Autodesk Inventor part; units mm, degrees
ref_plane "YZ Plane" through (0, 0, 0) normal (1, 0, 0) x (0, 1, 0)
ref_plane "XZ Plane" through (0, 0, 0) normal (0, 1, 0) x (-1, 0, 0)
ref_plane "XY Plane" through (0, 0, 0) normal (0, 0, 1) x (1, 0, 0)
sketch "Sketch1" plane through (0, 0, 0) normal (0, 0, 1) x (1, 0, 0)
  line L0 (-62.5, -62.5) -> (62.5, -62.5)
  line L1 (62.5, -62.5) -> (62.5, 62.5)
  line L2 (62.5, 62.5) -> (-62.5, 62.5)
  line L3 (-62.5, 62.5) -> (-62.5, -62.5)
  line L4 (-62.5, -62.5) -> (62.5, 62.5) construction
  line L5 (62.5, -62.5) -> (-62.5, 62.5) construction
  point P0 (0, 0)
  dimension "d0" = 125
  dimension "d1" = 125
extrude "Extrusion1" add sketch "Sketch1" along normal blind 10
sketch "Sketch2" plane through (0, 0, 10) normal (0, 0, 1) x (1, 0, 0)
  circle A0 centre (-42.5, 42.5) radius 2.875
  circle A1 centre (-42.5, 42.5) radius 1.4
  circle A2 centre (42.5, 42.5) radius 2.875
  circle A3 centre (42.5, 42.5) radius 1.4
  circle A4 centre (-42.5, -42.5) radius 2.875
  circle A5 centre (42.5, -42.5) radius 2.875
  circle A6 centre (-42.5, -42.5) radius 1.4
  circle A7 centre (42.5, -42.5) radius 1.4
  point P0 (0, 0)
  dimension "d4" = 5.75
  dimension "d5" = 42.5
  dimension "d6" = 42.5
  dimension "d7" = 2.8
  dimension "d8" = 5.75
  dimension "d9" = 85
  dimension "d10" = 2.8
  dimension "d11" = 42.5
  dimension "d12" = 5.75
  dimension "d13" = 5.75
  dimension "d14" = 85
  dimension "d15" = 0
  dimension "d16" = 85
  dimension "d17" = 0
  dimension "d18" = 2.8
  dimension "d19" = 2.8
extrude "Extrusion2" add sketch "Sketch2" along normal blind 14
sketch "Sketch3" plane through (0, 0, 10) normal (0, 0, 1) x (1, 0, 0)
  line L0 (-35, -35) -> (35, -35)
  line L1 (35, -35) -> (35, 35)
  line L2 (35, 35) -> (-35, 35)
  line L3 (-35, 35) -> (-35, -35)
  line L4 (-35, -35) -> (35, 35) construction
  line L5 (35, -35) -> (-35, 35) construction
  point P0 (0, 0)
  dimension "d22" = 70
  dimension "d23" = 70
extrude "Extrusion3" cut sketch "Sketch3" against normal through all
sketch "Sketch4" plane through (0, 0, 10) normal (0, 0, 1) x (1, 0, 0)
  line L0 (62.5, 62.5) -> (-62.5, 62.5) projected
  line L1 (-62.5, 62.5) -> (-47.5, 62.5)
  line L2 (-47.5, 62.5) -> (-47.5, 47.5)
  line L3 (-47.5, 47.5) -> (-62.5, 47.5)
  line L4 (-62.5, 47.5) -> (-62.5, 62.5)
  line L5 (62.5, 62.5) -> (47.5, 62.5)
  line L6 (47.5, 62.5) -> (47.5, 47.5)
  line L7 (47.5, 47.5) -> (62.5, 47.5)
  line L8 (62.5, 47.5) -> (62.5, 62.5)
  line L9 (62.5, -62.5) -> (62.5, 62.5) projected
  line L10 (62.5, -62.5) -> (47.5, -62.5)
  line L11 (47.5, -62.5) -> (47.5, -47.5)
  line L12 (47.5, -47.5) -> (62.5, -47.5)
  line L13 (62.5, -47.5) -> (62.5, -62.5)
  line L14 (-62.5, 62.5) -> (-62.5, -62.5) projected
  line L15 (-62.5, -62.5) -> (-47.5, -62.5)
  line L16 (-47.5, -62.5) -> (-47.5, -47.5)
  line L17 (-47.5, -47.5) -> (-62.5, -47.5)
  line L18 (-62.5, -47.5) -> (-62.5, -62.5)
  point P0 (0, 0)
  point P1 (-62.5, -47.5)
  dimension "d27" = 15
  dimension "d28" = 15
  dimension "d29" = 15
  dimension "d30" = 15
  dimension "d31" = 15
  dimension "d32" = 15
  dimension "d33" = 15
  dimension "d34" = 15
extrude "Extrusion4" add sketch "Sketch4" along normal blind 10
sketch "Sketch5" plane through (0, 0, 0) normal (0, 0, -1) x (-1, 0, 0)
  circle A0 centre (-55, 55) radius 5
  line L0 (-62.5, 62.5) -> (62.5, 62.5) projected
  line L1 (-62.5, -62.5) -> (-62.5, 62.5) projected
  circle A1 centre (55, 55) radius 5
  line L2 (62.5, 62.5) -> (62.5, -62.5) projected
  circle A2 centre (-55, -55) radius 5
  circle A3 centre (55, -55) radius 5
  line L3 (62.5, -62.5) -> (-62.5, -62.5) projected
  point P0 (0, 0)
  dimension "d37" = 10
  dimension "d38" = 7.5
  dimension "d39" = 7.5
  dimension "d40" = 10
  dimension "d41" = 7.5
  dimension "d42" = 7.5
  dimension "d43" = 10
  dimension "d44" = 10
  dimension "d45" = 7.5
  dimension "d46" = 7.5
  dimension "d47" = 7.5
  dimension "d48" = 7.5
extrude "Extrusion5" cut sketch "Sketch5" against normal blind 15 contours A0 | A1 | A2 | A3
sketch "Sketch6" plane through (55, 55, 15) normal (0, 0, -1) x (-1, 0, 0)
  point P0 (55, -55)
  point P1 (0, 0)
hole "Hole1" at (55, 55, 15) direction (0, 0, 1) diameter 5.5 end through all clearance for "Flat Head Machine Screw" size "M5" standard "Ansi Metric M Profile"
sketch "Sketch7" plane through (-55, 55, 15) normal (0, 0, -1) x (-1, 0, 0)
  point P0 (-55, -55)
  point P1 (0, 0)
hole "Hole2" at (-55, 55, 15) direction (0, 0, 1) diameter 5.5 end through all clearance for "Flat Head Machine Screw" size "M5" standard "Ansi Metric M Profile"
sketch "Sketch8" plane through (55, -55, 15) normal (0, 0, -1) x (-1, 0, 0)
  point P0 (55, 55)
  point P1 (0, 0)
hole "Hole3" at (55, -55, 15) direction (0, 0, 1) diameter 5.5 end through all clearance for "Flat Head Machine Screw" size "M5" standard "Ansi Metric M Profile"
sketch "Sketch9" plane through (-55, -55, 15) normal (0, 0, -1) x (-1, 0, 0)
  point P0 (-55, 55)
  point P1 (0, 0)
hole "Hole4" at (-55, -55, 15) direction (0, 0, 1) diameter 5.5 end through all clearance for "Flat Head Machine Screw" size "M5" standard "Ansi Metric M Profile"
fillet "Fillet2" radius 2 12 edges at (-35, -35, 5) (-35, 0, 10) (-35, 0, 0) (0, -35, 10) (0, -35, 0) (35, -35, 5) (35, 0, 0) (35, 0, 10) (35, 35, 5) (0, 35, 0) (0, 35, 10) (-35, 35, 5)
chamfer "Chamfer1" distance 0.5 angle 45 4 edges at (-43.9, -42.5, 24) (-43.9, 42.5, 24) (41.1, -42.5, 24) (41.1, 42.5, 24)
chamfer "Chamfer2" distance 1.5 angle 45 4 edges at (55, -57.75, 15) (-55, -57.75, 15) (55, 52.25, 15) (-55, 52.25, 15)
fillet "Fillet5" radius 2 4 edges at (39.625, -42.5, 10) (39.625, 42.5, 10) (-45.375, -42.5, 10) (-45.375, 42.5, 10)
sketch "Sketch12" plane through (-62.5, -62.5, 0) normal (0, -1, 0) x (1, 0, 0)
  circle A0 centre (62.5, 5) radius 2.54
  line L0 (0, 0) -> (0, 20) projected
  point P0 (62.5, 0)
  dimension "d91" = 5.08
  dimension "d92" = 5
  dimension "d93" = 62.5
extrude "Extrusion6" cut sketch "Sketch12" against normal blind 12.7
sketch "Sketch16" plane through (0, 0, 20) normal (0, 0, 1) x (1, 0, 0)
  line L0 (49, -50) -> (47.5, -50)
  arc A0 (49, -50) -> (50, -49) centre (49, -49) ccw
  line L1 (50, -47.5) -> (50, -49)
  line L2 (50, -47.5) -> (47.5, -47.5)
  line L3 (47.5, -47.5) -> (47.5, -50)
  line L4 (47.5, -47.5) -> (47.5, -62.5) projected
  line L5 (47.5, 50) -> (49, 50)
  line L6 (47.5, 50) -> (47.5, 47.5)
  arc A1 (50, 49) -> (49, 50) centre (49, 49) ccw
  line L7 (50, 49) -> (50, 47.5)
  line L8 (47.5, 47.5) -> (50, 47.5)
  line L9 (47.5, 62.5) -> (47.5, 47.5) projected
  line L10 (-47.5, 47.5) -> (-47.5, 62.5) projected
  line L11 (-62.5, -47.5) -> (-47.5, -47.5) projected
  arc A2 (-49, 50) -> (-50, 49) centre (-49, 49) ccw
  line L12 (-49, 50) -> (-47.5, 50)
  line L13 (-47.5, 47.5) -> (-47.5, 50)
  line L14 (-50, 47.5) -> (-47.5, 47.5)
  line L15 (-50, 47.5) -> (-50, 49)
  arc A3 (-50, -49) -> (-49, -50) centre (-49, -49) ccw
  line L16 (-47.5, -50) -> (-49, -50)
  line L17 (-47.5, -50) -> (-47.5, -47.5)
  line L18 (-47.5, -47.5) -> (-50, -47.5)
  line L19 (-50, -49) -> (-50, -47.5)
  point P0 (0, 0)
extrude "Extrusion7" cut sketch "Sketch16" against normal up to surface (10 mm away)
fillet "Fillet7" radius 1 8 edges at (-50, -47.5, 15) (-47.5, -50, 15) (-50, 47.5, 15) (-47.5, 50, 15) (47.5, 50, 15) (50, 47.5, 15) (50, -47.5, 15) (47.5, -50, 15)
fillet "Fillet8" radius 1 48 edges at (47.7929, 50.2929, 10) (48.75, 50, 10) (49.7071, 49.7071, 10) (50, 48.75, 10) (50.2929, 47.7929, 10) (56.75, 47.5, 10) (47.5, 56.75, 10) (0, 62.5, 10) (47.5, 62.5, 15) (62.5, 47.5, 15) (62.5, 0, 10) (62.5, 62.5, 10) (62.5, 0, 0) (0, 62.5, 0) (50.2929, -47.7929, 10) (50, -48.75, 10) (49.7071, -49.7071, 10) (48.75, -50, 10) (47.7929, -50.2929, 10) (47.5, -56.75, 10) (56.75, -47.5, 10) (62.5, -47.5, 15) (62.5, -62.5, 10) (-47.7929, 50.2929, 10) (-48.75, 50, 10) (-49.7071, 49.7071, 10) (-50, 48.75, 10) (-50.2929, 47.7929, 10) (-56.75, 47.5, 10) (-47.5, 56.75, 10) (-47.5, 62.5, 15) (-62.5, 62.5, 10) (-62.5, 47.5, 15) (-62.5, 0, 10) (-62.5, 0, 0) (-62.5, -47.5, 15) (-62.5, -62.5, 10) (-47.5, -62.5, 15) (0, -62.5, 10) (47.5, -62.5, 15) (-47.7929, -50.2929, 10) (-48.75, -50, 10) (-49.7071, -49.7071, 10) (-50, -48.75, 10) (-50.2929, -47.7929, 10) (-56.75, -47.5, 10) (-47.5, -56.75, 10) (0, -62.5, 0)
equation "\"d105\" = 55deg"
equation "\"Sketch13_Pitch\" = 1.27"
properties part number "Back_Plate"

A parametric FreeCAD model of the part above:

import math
import FreeCAD as App
import Part
import Sketcher

V = App.Vector


def edges_at(feature, points):
    """Names of the edges that pass closest to the given points."""
    edges = feature.Shape.Edges
    near = lambda p: min(range(len(edges)), key=lambda i: edges[i].distToShape(Part.Vertex(*p))[0])
    return sorted({f"Edge{near(p) + 1}" for p in points})

doc = App.newDocument("Part")
params = doc.addObject("Spreadsheet::Sheet", "Params")
for row, (alias, value) in enumerate([
    ("sketch1_width", "125 mm"),
    ("pad1_length", "10 mm"),
    ("sketch2_diameter", "2.8 mm"),
    ("sketch2_diameter2", "5.75 mm"),
    ("pad2_length", "14 mm"),
    ("sketch3_width", "70 mm"),
    ("sketch4_width", "15 mm"),
    ("pad3_length", "10 mm"),
    ("sketch5_diameter", "10 mm"),
    ("pocket2_length", "15 mm"),
    ("sketch6_diameter", "5.5 mm"),
    ("hole_diameter", "5.5 mm"),
    ("sketch7_diameter", "5.5 mm"),
    ("hole2_diameter", "5.5 mm"),
    ("sketch8_diameter", "5.5 mm"),
    ("hole3_diameter", "5.5 mm"),
    ("sketch9_diameter", "5.5 mm"),
    ("hole4_diameter", "5.5 mm"),
    ("fillet_radius", "2 mm"),
    ("chamfer_size", "0.5 mm"),
    ("chamfer2_size", "1.5 mm"),
    ("fillet2_radius", "2 mm"),
    ("sketch10_diameter", "5.08 mm"),
    ("pocket3_length", "12.7 mm"),
    ("sketch11_radius", "1 mm"),
    ("sketch11_width", "1.5 mm"),
    ("pocket4_length", "10 mm"),
    ("fillet3_radius", "1 mm"),
    ("fillet4_radius", "1 mm"),
], start=1):
    params.set(f"A{row}", alias)
    params.set(f"B{row}", "=" + value)
    params.setAlias(f"B{row}", alias)

body = doc.addObject("PartDesign::Body", "Body")

sketch1 = doc.addObject("Sketcher::SketchObject", "Sketch")
body.addObject(sketch1)
sketch1.AttachmentSupport = (doc.XY_Plane, [""])
sketch1.MapMode = "FlatFace"
sketch1.addGeometry([
    Part.LineSegment(V(-62, 62, 0), V(-62, -62, 0)),
    Part.LineSegment(V(-62, -62, 0), V(62, -62, 0)),
    Part.LineSegment(V(62, -62, 0), V(62, 62, 0)),
    Part.LineSegment(V(62, 62, 0), V(-62, 62, 0)),
], False)
sketch1.addConstraint([
    Sketcher.Constraint("Coincident", 0, 2, 1, 1),
    Sketcher.Constraint("Coincident", 1, 2, 2, 1),
    Sketcher.Constraint("Coincident", 2, 2, 3, 1),
    Sketcher.Constraint("Coincident", 3, 2, 0, 1),
    Sketcher.Constraint("Vertical", 0),
    Sketcher.Constraint("Horizontal", 1),
    Sketcher.Constraint("Vertical", 2),
    Sketcher.Constraint("Horizontal", 3),
    Sketcher.Constraint("Symmetric", 0, 2, 2, 2, -1, 1),
    Sketcher.Constraint("Equal", 3, 0),
    Sketcher.Constraint("DistanceX", 1, 1, 1, 2, 125.0),
])
sketch1.setExpression("Constraints[10]", "Params.sketch1_width")
pad1 = doc.addObject("PartDesign::Pad", "Pad")
body.addObject(pad1)
pad1.Profile = sketch1
pad1.setExpression("Length", "Params.pad1_length")

sketch2 = doc.addObject("Sketcher::SketchObject", "Sketch001")
body.addObject(sketch2)
sketch2.AttachmentSupport = (doc.XY_Plane, [""])
sketch2.MapMode = "FlatFace"
sketch2.AttachmentOffset = App.Placement(V(0, 0, 10), App.Rotation())
sketch2.addGeometry([
    Part.Circle(V(-42.5, 42.5, 0), V(0, 0, 1), 2.9),
    Part.Circle(V(-42.5, 42.5, 0), V(0, 0, 1), 1.4),
    Part.Circle(V(42.5, 42.5, 0), V(0, 0, 1), 2.9),
    Part.Circle(V(42.5, 42.5, 0), V(0, 0, 1), 1.4),
    Part.Circle(V(-42.5, -42.5, 0), V(0, 0, 1), 2.9),
    Part.Circle(V(-42.5, -42.5, 0), V(0, 0, 1), 1.4),
    Part.Circle(V(42.5, -42.5, 0), V(0, 0, 1), 2.9),
    Part.Circle(V(42.5, -42.5, 0), V(0, 0, 1), 1.4),
], False)
sketch2.addConstraint([
    Sketcher.Constraint("Coincident", 1, 3, 0, 3),
    Sketcher.Constraint("Coincident", 3, 3, 2, 3),
    Sketcher.Constraint("Coincident", 5, 3, 4, 3),
    Sketcher.Constraint("Coincident", 7, 3, 6, 3),
    Sketcher.Constraint("Equal", 0, 2),
    Sketcher.Constraint("Equal", 1, 3),
    Sketcher.Constraint("Equal", 2, 4),
    Sketcher.Constraint("Equal", 3, 5),
    Sketcher.Constraint("Equal", 4, 6),
    Sketcher.Constraint("Equal", 5, 7),
    Sketcher.Constraint("Symmetric", 2, 3, 4, 3, -1, 1),
    Sketcher.Constraint("Symmetric", 0, 3, 6, 3, -1, 1),
    Sketcher.Constraint("Symmetric", 0, 3, 2, 3, -2),
    Sketcher.Constraint("Diameter", 1, 2.8),
    Sketcher.Constraint("Diameter", 0, 5.75),
    Sketcher.Constraint("DistanceX", 0, 3, 2, 3, 85.0),
    Sketcher.Constraint("DistanceY", 4, 3, 0, 3, 85.0),
])
sketch2.setExpression("Constraints[13]", "Params.sketch2_diameter")
sketch2.setExpression("Constraints[14]", "Params.sketch2_diameter2")
pad2 = doc.addObject("PartDesign::Pad", "Pad001")
body.addObject(pad2)
pad2.Profile = sketch2
pad2.setExpression("Length", "Params.pad2_length")

sketch3 = doc.addObject("Sketcher::SketchObject", "Sketch002")
body.addObject(sketch3)
sketch3.AttachmentSupport = (doc.XY_Plane, [""])
sketch3.MapMode = "FlatFace"
sketch3.AttachmentOffset = App.Placement(V(0, 0, 10), App.Rotation())
sketch3.addGeometry([
    Part.LineSegment(V(-35, 35, 0), V(-35, -35, 0)),
    Part.LineSegment(V(-35, -35, 0), V(35, -35, 0)),
    Part.LineSegment(V(35, -35, 0), V(35, 35, 0)),
    Part.LineSegment(V(35, 35, 0), V(-35, 35, 0)),
], False)
sketch3.addConstraint([
    Sketcher.Constraint("Coincident", 0, 2, 1, 1),
    Sketcher.Constraint("Coincident", 1, 2, 2, 1),
    Sketcher.Constraint("Coincident", 2, 2, 3, 1),
    Sketcher.Constraint("Coincident", 3, 2, 0, 1),
    Sketcher.Constraint("Vertical", 0),
    Sketcher.Constraint("Horizontal", 1),
    Sketcher.Constraint("Vertical", 2),
    Sketcher.Constraint("Horizontal", 3),
    Sketcher.Constraint("Symmetric", 0, 2, 2, 2, -1, 1),
    Sketcher.Constraint("Equal", 3, 0),
    Sketcher.Constraint("DistanceX", 1, 1, 1, 2, 70.0),
])
sketch3.setExpression("Constraints[10]", "Params.sketch3_width")
pocket1 = doc.addObject("PartDesign::Pocket", "Pocket")
body.addObject(pocket1)
pocket1.Profile = sketch3
pocket1.Type = "ThroughAll"

sketch4 = doc.addObject("Sketcher::SketchObject", "Sketch003")
body.addObject(sketch4)
sketch4.AttachmentSupport = (doc.XY_Plane, [""])
sketch4.MapMode = "FlatFace"
sketch4.AttachmentOffset = App.Placement(V(0, 0, 10), App.Rotation())
sketch4.addGeometry([
    Part.LineSegment(V(62, 48, 0), V(62, 62, 0)),
    Part.LineSegment(V(62, 62, 0), V(48, 62, 0)),
    Part.LineSegment(V(48, 62, 0), V(48, 48, 0)),
    Part.LineSegment(V(48, 48, 0), V(62, 48, 0)),
    Part.LineSegment(V(62, -62, 0), V(62, -48, 0)),
    Part.LineSegment(V(62, -48, 0), V(48, -48, 0)),
    Part.LineSegment(V(48, -48, 0), V(48, -62, 0)),
    Part.LineSegment(V(48, -62, 0), V(62, -62, 0)),
    Part.LineSegment(V(-48, -48, 0), V(-62, -48, 0)),
    Part.LineSegment(V(-62, -48, 0), V(-62, -62, 0)),
    Part.LineSegment(V(-62, -62, 0), V(-48, -62, 0)),
    Part.LineSegment(V(-48, -62, 0), V(-48, -48, 0)),
    Part.LineSegment(V(-48, 48, 0), V(-48, 62, 0)),
    Part.LineSegment(V(-48, 62, 0), V(-62, 62, 0)),
    Part.LineSegment(V(-62, 62, 0), V(-62, 48, 0)),
    Part.LineSegment(V(-62, 48, 0), V(-48, 48, 0)),
], False)
sketch4.addConstraint([
    Sketcher.Constraint("Coincident", 0, 2, 1, 1),
    Sketcher.Constraint("Coincident", 1, 2, 2, 1),
    Sketcher.Constraint("Coincident", 2, 2, 3, 1),
    Sketcher.Constraint("Coincident", 3, 2, 0, 1),
    Sketcher.Constraint("Coincident", 4, 2, 5, 1),
    Sketcher.Constraint("Coincident", 5, 2, 6, 1),
    Sketcher.Constraint("Coincident", 6, 2, 7, 1),
    Sketcher.Constraint("Coincident", 7, 2, 4, 1),
    Sketcher.Constraint("Coincident", 8, 2, 9, 1),
    Sketcher.Constraint("Coincident", 9, 2, 10, 1),
    Sketcher.Constraint("Coincident", 10, 2, 11, 1),
    Sketcher.Constraint("Coincident", 11, 2, 8, 1),
    Sketcher.Constraint("Coincident", 12, 2, 13, 1),
    Sketcher.Constraint("Coincident", 13, 2, 14, 1),
    Sketcher.Constraint("Coincident", 14, 2, 15, 1),
    Sketcher.Constraint("Coincident", 15, 2, 12, 1),
    Sketcher.Constraint("Vertical", 0),
    Sketcher.Constraint("Horizontal", 1),
    Sketcher.Constraint("Vertical", 2),
    Sketcher.Constraint("Horizontal", 3),
    Sketcher.Constraint("Vertical", 4),
    Sketcher.Constraint("Horizontal", 5),
    Sketcher.Constraint("Vertical", 6),
    Sketcher.Constraint("Horizontal", 7),
    Sketcher.Constraint("Horizontal", 8),
    Sketcher.Constraint("Vertical", 9),
    Sketcher.Constraint("Horizontal", 10),
    Sketcher.Constraint("Vertical", 11),
    Sketcher.Constraint("Vertical", 12),
    Sketcher.Constraint("Horizontal", 13),
    Sketcher.Constraint("Vertical", 14),
    Sketcher.Constraint("Horizontal", 15),
    Sketcher.Constraint("Symmetric", 3, 2, 8, 2, -1, 1),
    Sketcher.Constraint("Symmetric", 1, 2, 10, 2, -1, 1),
    Sketcher.Constraint("Symmetric", 6, 2, 12, 2, -1, 1),
    Sketcher.Constraint("Symmetric", 4, 2, 14, 2, -1, 1),
    Sketcher.Constraint("Symmetric", 4, 2, 8, 2, -2),
    Sketcher.Constraint("Symmetric", 6, 2, 10, 2, -2),
    Sketcher.Constraint("Equal", 15, 0),
    Sketcher.Constraint("DistanceX", 1, 2, 1, 1, 15.0),
    Sketcher.Constraint("DistanceY", 4, 2, 3, 2, 95.0),
    Sketcher.Constraint("DistanceX", 8, 2, 5, 2, 110.0),
])
sketch4.setExpression("Constraints[39]", "Params.sketch4_width")
pad3 = doc.addObject("PartDesign::Pad", "Pad002")
body.addObject(pad3)
pad3.Profile = sketch4
pad3.setExpression("Length", "Params.pad3_length")

sketch5 = doc.addObject("Sketcher::SketchObject", "Sketch004")
body.addObject(sketch5)
sketch5.AttachmentSupport = (doc.XY_Plane, [""])
sketch5.MapMode = "FlatFace"
sketch5.addGeometry([
    Part.Circle(V(55, 55, 0), V(0, 0, 1), 5),
    Part.Circle(V(-55, 55, 0), V(0, 0, 1), 5),
    Part.Circle(V(55, -55, 0), V(0, 0, 1), 5),
    Part.Circle(V(-55, -55, 0), V(0, 0, 1), 5),
], False)
sketch5.addConstraint([
    Sketcher.Constraint("Equal", 0, 1),
    Sketcher.Constraint("Equal", 1, 2),
    Sketcher.Constraint("Equal", 2, 3),
    Sketcher.Constraint("Symmetric", 1, 3, 2, 3, -1, 1),
    Sketcher.Constraint("Symmetric", 0, 3, 3, 3, -1, 1),
    Sketcher.Constraint("Symmetric", 0, 3, 1, 3, -2),
    Sketcher.Constraint("Diameter", 0, 10.0),
    Sketcher.Constraint("DistanceX", -1, 1, 0, 3, 55.0),
    Sketcher.Constraint("DistanceY", -1, 1, 0, 3, 55.0),
])
sketch5.setExpression("Constraints[6]", "Params.sketch5_diameter")
pocket2 = doc.addObject("PartDesign::Pocket", "Pocket001")
body.addObject(pocket2)
pocket2.Profile = sketch5
pocket2.setExpression("Length", "Params.pocket2_length")
pocket2.Reversed = True

sketch6 = doc.addObject("Sketcher::SketchObject", "Sketch005")
body.addObject(sketch6)
sketch6.AttachmentSupport = (doc.XY_Plane, [""])
sketch6.MapMode = "FlatFace"
sketch6.AttachmentOffset = App.Placement(V(0, 0, 15), App.Rotation())
sketch6.addGeometry(Part.Circle(V(55, 55, 0), V(0, 0, 1), 2.8), False)
sketch6.addConstraint([
    Sketcher.Constraint("Diameter", 0, 5.5),
    Sketcher.Constraint("DistanceX", -1, 1, 0, 3, 55.0),
    Sketcher.Constraint("DistanceY", -1, 1, 0, 3, 55.0),
])
sketch6.setExpression("Constraints[0]", "Params.sketch6_diameter")
doc.recompute()
hole = doc.addObject("PartDesign::Hole", "Hole")
body.addObject(hole)
hole.Profile = sketch6
hole.ThreadType = "None"
hole.setExpression("Diameter", "Params.hole_diameter")
hole.DepthType = "ThroughAll"
hole.Reversed = True

sketch7 = doc.addObject("Sketcher::SketchObject", "Sketch006")
body.addObject(sketch7)
sketch7.AttachmentSupport = (doc.XY_Plane, [""])
sketch7.MapMode = "FlatFace"
sketch7.AttachmentOffset = App.Placement(V(0, 0, 15), App.Rotation())
sketch7.addGeometry(Part.Circle(V(-55, 55, 0), V(0, 0, 1), 2.8), False)
sketch7.addConstraint([
    Sketcher.Constraint("Diameter", 0, 5.5),
    Sketcher.Constraint("DistanceX", 0, 3, -1, 1, 55.0),
    Sketcher.Constraint("DistanceY", -1, 1, 0, 3, 55.0),
])
sketch7.setExpression("Constraints[0]", "Params.sketch7_diameter")
doc.recompute()
hole2 = doc.addObject("PartDesign::Hole", "Hole001")
body.addObject(hole2)
hole2.Profile = sketch7
hole2.ThreadType = "None"
hole2.setExpression("Diameter", "Params.hole2_diameter")
hole2.DepthType = "ThroughAll"
hole2.Reversed = True

sketch8 = doc.addObject("Sketcher::SketchObject", "Sketch007")
body.addObject(sketch8)
sketch8.AttachmentSupport = (doc.XY_Plane, [""])
sketch8.MapMode = "FlatFace"
sketch8.AttachmentOffset = App.Placement(V(0, 0, 15), App.Rotation())
sketch8.addGeometry(Part.Circle(V(55, -55, 0), V(0, 0, 1), 2.8), False)
sketch8.addConstraint([
    Sketcher.Constraint("Diameter", 0, 5.5),
    Sketcher.Constraint("DistanceX", -1, 1, 0, 3, 55.0),
    Sketcher.Constraint("DistanceY", 0, 3, -1, 1, 55.0),
])
sketch8.setExpression("Constraints[0]", "Params.sketch8_diameter")
doc.recompute()
hole3 = doc.addObject("PartDesign::Hole", "Hole002")
body.addObject(hole3)
hole3.Profile = sketch8
hole3.ThreadType = "None"
hole3.setExpression("Diameter", "Params.hole3_diameter")
hole3.DepthType = "ThroughAll"
hole3.Reversed = True

sketch9 = doc.addObject("Sketcher::SketchObject", "Sketch008")
body.addObject(sketch9)
sketch9.AttachmentSupport = (doc.XY_Plane, [""])
sketch9.MapMode = "FlatFace"
sketch9.AttachmentOffset = App.Placement(V(0, 0, 15), App.Rotation())
sketch9.addGeometry(Part.Circle(V(-55, -55, 0), V(0, 0, 1), 2.8), False)
sketch9.addConstraint([
    Sketcher.Constraint("Diameter", 0, 5.5),
    Sketcher.Constraint("DistanceX", 0, 3, -1, 1, 55.0),
    Sketcher.Constraint("DistanceY", 0, 3, -1, 1, 55.0),
])
sketch9.setExpression("Constraints[0]", "Params.sketch9_diameter")
doc.recompute()
hole4 = doc.addObject("PartDesign::Hole", "Hole003")
body.addObject(hole4)
hole4.Profile = sketch9
hole4.ThreadType = "None"
hole4.setExpression("Diameter", "Params.hole4_diameter")
hole4.DepthType = "ThroughAll"
hole4.Reversed = True
doc.recompute()

fillet = doc.addObject("PartDesign::Fillet", "Fillet")
body.addObject(fillet)
fillet.Base = (hole4, edges_at(hole4, [
    (-35, -35, 5),
    (-35, 0, 10),
    (-35, 0, 0),
    (0, -35, 10),
    (0, -35, 0),
    (35, -35, 5),
    (35, 0, 0),
    (35, 0, 10),
    (35, 35, 5),
    (0, 35, 0),
    (0, 35, 10),
    (-35, 35, 5),
]))
fillet.setExpression("Radius", "Params.fillet_radius")
doc.recompute()

chamfer = doc.addObject("PartDesign::Chamfer", "Chamfer")
body.addObject(chamfer)
chamfer.Base = (fillet, edges_at(fillet, [
    (-43.9, -42.5, 24),
    (-43.9, 42.5, 24),
    (41.1, -42.5, 24),
    (41.1, 42.5, 24),
]))
chamfer.setExpression("Size", "Params.chamfer_size")
doc.recompute()

chamfer2 = doc.addObject("PartDesign::Chamfer", "Chamfer001")
body.addObject(chamfer2)
chamfer2.Base = (chamfer, edges_at(chamfer, [
    (55, -57.75, 15),
    (-55, -57.75, 15),
    (55, 52.25, 15),
    (-55, 52.25, 15),
]))
chamfer2.setExpression("Size", "Params.chamfer2_size")
doc.recompute()

fillet2 = doc.addObject("PartDesign::Fillet", "Fillet001")
body.addObject(fillet2)
fillet2.Base = (chamfer2, edges_at(chamfer2, [
    (39.625, -42.5, 10),
    (39.625, 42.5, 10),
    (-45.375, -42.5, 10),
    (-45.375, 42.5, 10),
]))
fillet2.setExpression("Radius", "Params.fillet2_radius")

sketch10 = doc.addObject("Sketcher::SketchObject", "Sketch009")
body.addObject(sketch10)
sketch10.AttachmentSupport = (doc.XZ_Plane, [""])
sketch10.MapMode = "FlatFace"
sketch10.AttachmentOffset = App.Placement(V(0, 0, 62.5), App.Rotation())
sketch10.addGeometry(Part.Circle(V(0, 5, 0), V(0, 0, 1), 2.5), False)
sketch10.addConstraint([
    Sketcher.Constraint("PointOnObject", 0, 3, -2),
    Sketcher.Constraint("Diameter", 0, 5.08),
    Sketcher.Constraint("DistanceY", -1, 1, 0, 3, 5.0),
])
sketch10.setExpression("Constraints[1]", "Params.sketch10_diameter")
pocket3 = doc.addObject("PartDesign::Pocket", "Pocket002")
body.addObject(pocket3)
pocket3.Profile = sketch10
pocket3.setExpression("Length", "Params.pocket3_length")

sketch11 = doc.addObject("Sketcher::SketchObject", "Sketch010")
body.addObject(sketch11)
sketch11.AttachmentSupport = (doc.XY_Plane, [""])
sketch11.MapMode = "FlatFace"
sketch11.AttachmentOffset = App.Placement(V(0, 0, 20), App.Rotation())
sketch11.addGeometry([
    Part.LineSegment(V(47.5, -50, 0), V(49, -50, 0)),
    Part.ArcOfCircle(Part.Circle(V(49, -49, 0), V(0, 0, 1), 1), math.radians(-90), math.radians(0)),
    Part.LineSegment(V(50, -49, 0), V(50, -47.5, 0)),
    Part.LineSegment(V(50, -47.5, 0), V(47.5, -47.5, 0)),
    Part.LineSegment(V(47.5, -47.5, 0), V(47.5, -50, 0)),
    Part.LineSegment(V(49, 50, 0), V(47.5, 50, 0)),
    Part.LineSegment(V(47.5, 50, 0), V(47.5, 47.5, 0)),
    Part.LineSegment(V(47.5, 47.5, 0), V(50, 47.5, 0)),
    Part.LineSegment(V(50, 47.5, 0), V(50, 49, 0)),
    Part.ArcOfCircle(Part.Circle(V(49, 49, 0), V(0, 0, 1), 1), math.radians(0), math.radians(90)),
    Part.LineSegment(V(-50, 47.5, 0), V(-47.5, 47.5, 0)),
    Part.LineSegment(V(-47.5, 47.5, 0), V(-47.5, 50, 0)),
    Part.LineSegment(V(-47.5, 50, 0), V(-49, 50, 0)),
    Part.ArcOfCircle(Part.Circle(V(-49, 49, 0), V(0, 0, 1), 1), math.radians(90), math.radians(180)),
    Part.LineSegment(V(-50, 49, 0), V(-50, 47.5, 0)),
    Part.LineSegment(V(-47.5, -47.5, 0), V(-50, -47.5, 0)),
    Part.LineSegment(V(-50, -47.5, 0), V(-50, -49, 0)),
    Part.ArcOfCircle(Part.Circle(V(-49, -49, 0), V(0, 0, 1), 1), math.radians(180), math.radians(270)),
    Part.LineSegment(V(-49, -50, 0), V(-47.5, -50, 0)),
    Part.LineSegment(V(-47.5, -50, 0), V(-47.5, -47.5, 0)),
], False)
sketch11.addConstraint([
    Sketcher.Constraint("Tangent", 0, 2, 1, 1),
    Sketcher.Constraint("Tangent", 1, 2, 2, 1),
    Sketcher.Constraint("Coincident", 2, 2, 3, 1),
    Sketcher.Constraint("Coincident", 3, 2, 4, 1),
    Sketcher.Constraint("Coincident", 4, 2, 0, 1),
    Sketcher.Constraint("Coincident", 5, 2, 6, 1),
    Sketcher.Constraint("Coincident", 6, 2, 7, 1),
    Sketcher.Constraint("Coincident", 7, 2, 8, 1),
    Sketcher.Constraint("Tangent", 8, 2, 9, 1),
    Sketcher.Constraint("Tangent", 9, 2, 5, 1),
    Sketcher.Constraint("Coincident", 10, 2, 11, 1),
    Sketcher.Constraint("Coincident", 11, 2, 12, 1),
    Sketcher.Constraint("Tangent", 12, 2, 13, 1),
    Sketcher.Constraint("Tangent", 13, 2, 14, 1),
    Sketcher.Constraint("Coincident", 14, 2, 10, 1),
    Sketcher.Constraint("Coincident", 15, 2, 16, 1),
    Sketcher.Constraint("Tangent", 16, 2, 17, 1),
    Sketcher.Constraint("Tangent", 17, 2, 18, 1),
    Sketcher.Constraint("Coincident", 18, 2, 19, 1),
    Sketcher.Constraint("Coincident", 19, 2, 15, 1),
    Sketcher.Constraint("Horizontal", 0),
    Sketcher.Constraint("Vertical", 2),
    Sketcher.Constraint("Horizontal", 3),
    Sketcher.Constraint("Vertical", 4),
    Sketcher.Constraint("Horizontal", 5),
    Sketcher.Constraint("Vertical", 6),
    Sketcher.Constraint("Horizontal", 7),
    Sketcher.Constraint("Vertical", 8),
    Sketcher.Constraint("Horizontal", 10),
    Sketcher.Constraint("Vertical", 11),
    Sketcher.Constraint("Horizontal", 12),
    Sketcher.Constraint("Vertical", 14),
    Sketcher.Constraint("Horizontal", 15),
    Sketcher.Constraint("Vertical", 16),
    Sketcher.Constraint("Horizontal", 18),
    Sketcher.Constraint("Vertical", 19),
    Sketcher.Constraint("Equal", 1, 9),
    Sketcher.Constraint("Equal", 9, 13),
    Sketcher.Constraint("Equal", 13, 17),
    Sketcher.Constraint("Symmetric", 1, 3, 13, 3, -1, 1),
    Sketcher.Constraint("Symmetric", 9, 3, 17, 3, -1, 1),
    Sketcher.Constraint("Symmetric", 3, 2, 10, 2, -1, 1),
    Sketcher.Constraint("Symmetric", 6, 2, 19, 2, -1, 1),
    Sketcher.Constraint("Symmetric", 9, 3, 13, 3, -2),
    Sketcher.Constraint("Symmetric", 6, 2, 10, 2, -2),
    Sketcher.Constraint("Equal", 18, 2),
    Sketcher.Constraint("Radius", 1, 1.0),
    Sketcher.Constraint("DistanceX", 0, 1, 0, 2, 1.5),
    Sketcher.Constraint("DistanceX", -1, 1, 1, 3, 49.0),
    Sketcher.Constraint("DistanceY", 1, 3, -1, 1, 49.0),
])
sketch11.setExpression("Constraints[46]", "Params.sketch11_radius")
sketch11.setExpression("Constraints[47]", "Params.sketch11_width")
pocket4 = doc.addObject("PartDesign::Pocket", "Pocket003")
body.addObject(pocket4)
pocket4.Profile = sketch11
pocket4.setExpression("Length", "Params.pocket4_length")
doc.recompute()

fillet3 = doc.addObject("PartDesign::Fillet", "Fillet002")
body.addObject(fillet3)
fillet3.Base = (pocket4, edges_at(pocket4, [
    (-50, -47.5, 15),
    (-47.5, -50, 15),
    (-50, 47.5, 15),
    (-47.5, 50, 15),
    (47.5, 50, 15),
    (50, 47.5, 15),
    (50, -47.5, 15),
    (47.5, -50, 15),
]))
fillet3.setExpression("Radius", "Params.fillet3_radius")
doc.recompute()

fillet4 = doc.addObject("PartDesign::Fillet", "Fillet003")
body.addObject(fillet4)
fillet4.Base = (fillet3, edges_at(fillet3, [
    (47.793, 50.293, 10),
    (48.75, 50, 10),
    (49.707, 49.707, 10),
    (50, 48.75, 10),
    (50.293, 47.793, 10),
    (56.75, 47.5, 10),
    (47.5, 56.75, 10),
    (0, 62.5, 10),
    (47.5, 62.5, 15),
    (62.5, 47.5, 15),
    (62.5, 0, 10),
    (62.5, 62.5, 10),
    (62.5, 0, 0),
    (0, 62.5, 0),
    (50.293, -47.793, 10),
    (50, -48.75, 10),
    (49.707, -49.707, 10),
    (48.75, -50, 10),
    (47.793, -50.293, 10),
    (47.5, -56.75, 10),
    (56.75, -47.5, 10),
    (62.5, -47.5, 15),
    (62.5, -62.5, 10),
    (-47.793, 50.293, 10),
    (-48.75, 50, 10),
    (-49.707, 49.707, 10),
    (-50, 48.75, 10),
    (-50.293, 47.793, 10),
    (-56.75, 47.5, 10),
    (-47.5, 56.75, 10),
    (-47.5, 62.5, 15),
    (-62.5, 62.5, 10),
    (-62.5, 47.5, 15),
    (-62.5, 0, 10),
    (-62.5, 0, 0),
    (-62.5, -47.5, 15),
    (-62.5, -62.5, 10),
    (-47.5, -62.5, 15),
    (0, -62.5, 10),
    (47.5, -62.5, 15),
    (-47.793, -50.293, 10),
    (-48.75, -50, 10),
    (-49.707, -49.707, 10),
    (-50, -48.75, 10),
    (-50.293, -47.793, 10),
    (-56.75, -47.5, 10),
    (-47.5, -56.75, 10),
    (0, -62.5, 0),
]))
fillet4.setExpression("Radius", "Params.fillet4_radius")

doc.recompute()
